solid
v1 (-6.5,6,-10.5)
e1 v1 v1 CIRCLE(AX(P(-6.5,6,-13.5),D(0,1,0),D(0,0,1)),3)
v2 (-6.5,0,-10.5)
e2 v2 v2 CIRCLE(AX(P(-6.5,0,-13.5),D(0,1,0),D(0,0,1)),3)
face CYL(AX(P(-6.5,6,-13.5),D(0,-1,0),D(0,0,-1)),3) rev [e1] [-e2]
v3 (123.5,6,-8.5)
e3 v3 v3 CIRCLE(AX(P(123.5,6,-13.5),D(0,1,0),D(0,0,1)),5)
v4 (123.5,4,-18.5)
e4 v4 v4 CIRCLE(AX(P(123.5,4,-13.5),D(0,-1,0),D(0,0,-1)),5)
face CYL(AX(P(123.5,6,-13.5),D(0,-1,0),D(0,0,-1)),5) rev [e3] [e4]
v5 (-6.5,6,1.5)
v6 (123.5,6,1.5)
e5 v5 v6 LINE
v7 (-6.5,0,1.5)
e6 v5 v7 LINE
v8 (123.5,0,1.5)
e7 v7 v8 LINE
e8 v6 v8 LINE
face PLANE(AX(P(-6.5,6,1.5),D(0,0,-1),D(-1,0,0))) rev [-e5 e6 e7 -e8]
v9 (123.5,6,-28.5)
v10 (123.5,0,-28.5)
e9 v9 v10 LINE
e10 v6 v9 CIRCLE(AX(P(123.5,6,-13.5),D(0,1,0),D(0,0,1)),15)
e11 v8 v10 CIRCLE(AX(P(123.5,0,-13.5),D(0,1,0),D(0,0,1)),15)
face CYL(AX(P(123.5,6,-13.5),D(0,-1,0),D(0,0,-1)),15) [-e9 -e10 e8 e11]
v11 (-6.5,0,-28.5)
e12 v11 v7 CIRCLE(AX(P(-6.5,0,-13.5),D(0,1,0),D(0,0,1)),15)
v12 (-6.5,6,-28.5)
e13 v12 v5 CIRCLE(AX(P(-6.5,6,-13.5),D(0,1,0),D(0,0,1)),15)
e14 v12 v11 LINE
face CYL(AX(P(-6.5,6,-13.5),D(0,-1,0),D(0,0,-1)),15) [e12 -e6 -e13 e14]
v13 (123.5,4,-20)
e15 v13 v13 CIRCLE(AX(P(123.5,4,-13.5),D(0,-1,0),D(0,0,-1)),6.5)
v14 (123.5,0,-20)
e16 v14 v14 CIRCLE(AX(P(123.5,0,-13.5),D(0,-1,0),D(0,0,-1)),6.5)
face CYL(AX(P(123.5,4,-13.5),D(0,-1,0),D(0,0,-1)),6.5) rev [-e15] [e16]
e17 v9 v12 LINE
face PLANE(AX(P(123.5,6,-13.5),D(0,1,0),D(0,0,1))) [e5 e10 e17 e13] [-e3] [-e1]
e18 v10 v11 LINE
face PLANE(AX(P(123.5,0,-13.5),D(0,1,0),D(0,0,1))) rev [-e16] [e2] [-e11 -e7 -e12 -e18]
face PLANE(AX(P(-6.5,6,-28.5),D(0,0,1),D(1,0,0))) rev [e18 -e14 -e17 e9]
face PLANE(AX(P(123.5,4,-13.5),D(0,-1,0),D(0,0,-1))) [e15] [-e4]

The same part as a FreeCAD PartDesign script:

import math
import FreeCAD as App
import Part
import Sketcher

V = App.Vector
Q = App.Units.Quantity

doc = App.newDocument("Part")
body = doc.addObject("PartDesign::Body", "Body")

# Sketch on XZ plane
sketch1 = body.newObject("Sketcher::SketchObject", "Sketch")
sketch1.AttachmentSupport = (doc.getObject("XZ_Plane"), [""])
sketch1.MapMode = "FlatFace"
sketch1.addGeometry(Part.LineSegment(V(123.5, -28.5, 0), V(-6.5, -28.5, 0)), False)
sketch1.addGeometry(Part.ArcOfCircle(Part.Circle(V(-6.5, -13.5, 0), V(0, 0, 1), 15), math.radians(90), math.radians(270)), False)
sketch1.addGeometry(Part.LineSegment(V(-6.5, 1.5, 0), V(123.5, 1.5, 0)), False)
sketch1.addGeometry(Part.ArcOfCircle(Part.Circle(V(123.5, -13.5, 0), V(0, 0, 1), 15), math.radians(-90), math.radians(90)), False)
sketch1.addGeometry(Part.Circle(V(123.5, -13.5, 0), V(0, 0, 1), 5), False)
sketch1.addGeometry(Part.Circle(V(-6.5, -13.5, 0), V(0, 0, 1), 3), False)
sketch1.addConstraint(Sketcher.Constraint("Tangent", 0, 2, 1, 2))
sketch1.addConstraint(Sketcher.Constraint("Tangent", 1, 1, 2, 1))
sketch1.addConstraint(Sketcher.Constraint("Tangent", 2, 2, 3, 2))
sketch1.addConstraint(Sketcher.Constraint("Tangent", 3, 1, 0, 1))
sketch1.addConstraint(Sketcher.Constraint("Horizontal", 0))
sketch1.addConstraint(Sketcher.Constraint("Horizontal", 2))
sketch1.addConstraint(Sketcher.Constraint("Coincident", 4, 3, 3, 3))
sketch1.addConstraint(Sketcher.Constraint("Coincident", 5, 3, 1, 3))
sketch1.addConstraint(Sketcher.Constraint("Diameter", 4, Q("10 mm")))
sketch1.addConstraint(Sketcher.Constraint("Diameter", 5, Q("6 mm")))
sketch1.addConstraint(Sketcher.Constraint("Radius", 1, Q("15 mm")))
sketch1.addConstraint(Sketcher.Constraint("DistanceX", 0, 2, 0, 1, Q("130 mm")))
sketch1.addConstraint(Sketcher.Constraint("DistanceX", 1, 3, -1, 1, Q("6.5 mm")))
sketch1.addConstraint(Sketcher.Constraint("DistanceY", 1, 3, -1, 1, Q("13.5 mm")))
pad1 = body.newObject("PartDesign::Pad", "Pad")
pad1.Profile = sketch1
pad1.Length = 6
pad1.Reversed = True

# Sketch on XZ plane
sketch2 = body.newObject("Sketcher::SketchObject", "Sketch001")
sketch2.AttachmentSupport = (doc.getObject("XZ_Plane"), [""])
sketch2.MapMode = "FlatFace"
sketch2.addGeometry(Part.Circle(V(124, -14, 0), V(0, 0, 1), 6), False)
sketch2.addConstraint(Sketcher.Constraint("Diameter", 0, Q("13 mm")))
sketch2.addConstraint(Sketcher.Constraint("DistanceX", -1, 1, 0, 3, Q("123.5 mm")))
sketch2.addConstraint(Sketcher.Constraint("DistanceY", 0, 3, -1, 1, Q("13.5 mm")))
pocket1 = body.newObject("PartDesign::Pocket", "Pocket")
pocket1.Profile = sketch2
pocket1.Length = 4

doc.recompute()
